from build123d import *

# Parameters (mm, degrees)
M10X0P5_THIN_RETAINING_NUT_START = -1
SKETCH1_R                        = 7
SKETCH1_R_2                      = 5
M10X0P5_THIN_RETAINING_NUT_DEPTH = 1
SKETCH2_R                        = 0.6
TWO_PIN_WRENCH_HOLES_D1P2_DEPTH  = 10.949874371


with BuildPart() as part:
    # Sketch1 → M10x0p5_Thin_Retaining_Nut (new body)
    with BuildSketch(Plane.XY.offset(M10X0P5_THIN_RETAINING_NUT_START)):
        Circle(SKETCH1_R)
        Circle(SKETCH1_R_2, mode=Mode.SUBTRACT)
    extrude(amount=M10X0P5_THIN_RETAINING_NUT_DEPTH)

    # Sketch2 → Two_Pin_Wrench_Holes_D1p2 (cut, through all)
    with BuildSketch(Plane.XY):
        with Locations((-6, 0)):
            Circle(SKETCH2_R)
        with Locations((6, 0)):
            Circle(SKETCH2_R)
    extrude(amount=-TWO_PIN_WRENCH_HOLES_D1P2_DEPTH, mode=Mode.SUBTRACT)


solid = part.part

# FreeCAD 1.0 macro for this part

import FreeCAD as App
import Part
import Sketcher
from FreeCAD import Vector
Q = App.Units.Quantity

doc = App.newDocument("Part")
body = doc.addObject("PartDesign::Body", "Body")

sketch1 = body.newObject("Sketcher::SketchObject", "Sketch")
sketch1.AttachmentSupport = (doc.getObject("XY_Plane"), [""])
sketch1.MapMode = "FlatFace"
sketch1.AttachmentOffset = App.Placement(Vector(0, 0, -1), App.Rotation())
sketch1.addGeometry([
    Part.Circle(Vector(0, 0, 0), Vector(0, 0, 1), 7),
    Part.Circle(Vector(0, 0, 0), Vector(0, 0, 1), 5),
], False)
sketch1.addConstraint([
    Sketcher.Constraint("Coincident", 0, 3, -1, 1),
    Sketcher.Constraint("Coincident", 1, 3, -1, 1),
    Sketcher.Constraint("Diameter", 0, Q("14 mm")),
    Sketcher.Constraint("Diameter", 1, Q("10 mm")),
])
pad1 = body.newObject("PartDesign::Pad", "Pad")
pad1.Profile = sketch1
pad1.Length = 1

sketch2 = body.newObject("Sketcher::SketchObject", "Sketch001")
sketch2.AttachmentSupport = (doc.getObject("XY_Plane"), [""])
sketch2.MapMode = "FlatFace"
sketch2.addGeometry([
    Part.Circle(Vector(-6, 0, 0), Vector(0, 0, 1), 0.6),
    Part.Circle(Vector(6, 0, 0), Vector(0, 0, 1), 0.6),
], False)
sketch2.addConstraint([
    Sketcher.Constraint("Equal", 0, 1),
    Sketcher.Constraint("Symmetric", 0, 3, 1, 3, -1, 1),
    Sketcher.Constraint("PointOnObject", 0, 3, -1),
    Sketcher.Constraint("Diameter", 0, Q("1.2 mm")),
    Sketcher.Constraint("DistanceX", 0, 3, -1, 1, Q("6 mm")),
])
pocket1 = body.newObject("PartDesign::Pocket", "Pocket")
pocket1.Profile = sketch2
pocket1.Type = "ThroughAll"

doc.recompute()
